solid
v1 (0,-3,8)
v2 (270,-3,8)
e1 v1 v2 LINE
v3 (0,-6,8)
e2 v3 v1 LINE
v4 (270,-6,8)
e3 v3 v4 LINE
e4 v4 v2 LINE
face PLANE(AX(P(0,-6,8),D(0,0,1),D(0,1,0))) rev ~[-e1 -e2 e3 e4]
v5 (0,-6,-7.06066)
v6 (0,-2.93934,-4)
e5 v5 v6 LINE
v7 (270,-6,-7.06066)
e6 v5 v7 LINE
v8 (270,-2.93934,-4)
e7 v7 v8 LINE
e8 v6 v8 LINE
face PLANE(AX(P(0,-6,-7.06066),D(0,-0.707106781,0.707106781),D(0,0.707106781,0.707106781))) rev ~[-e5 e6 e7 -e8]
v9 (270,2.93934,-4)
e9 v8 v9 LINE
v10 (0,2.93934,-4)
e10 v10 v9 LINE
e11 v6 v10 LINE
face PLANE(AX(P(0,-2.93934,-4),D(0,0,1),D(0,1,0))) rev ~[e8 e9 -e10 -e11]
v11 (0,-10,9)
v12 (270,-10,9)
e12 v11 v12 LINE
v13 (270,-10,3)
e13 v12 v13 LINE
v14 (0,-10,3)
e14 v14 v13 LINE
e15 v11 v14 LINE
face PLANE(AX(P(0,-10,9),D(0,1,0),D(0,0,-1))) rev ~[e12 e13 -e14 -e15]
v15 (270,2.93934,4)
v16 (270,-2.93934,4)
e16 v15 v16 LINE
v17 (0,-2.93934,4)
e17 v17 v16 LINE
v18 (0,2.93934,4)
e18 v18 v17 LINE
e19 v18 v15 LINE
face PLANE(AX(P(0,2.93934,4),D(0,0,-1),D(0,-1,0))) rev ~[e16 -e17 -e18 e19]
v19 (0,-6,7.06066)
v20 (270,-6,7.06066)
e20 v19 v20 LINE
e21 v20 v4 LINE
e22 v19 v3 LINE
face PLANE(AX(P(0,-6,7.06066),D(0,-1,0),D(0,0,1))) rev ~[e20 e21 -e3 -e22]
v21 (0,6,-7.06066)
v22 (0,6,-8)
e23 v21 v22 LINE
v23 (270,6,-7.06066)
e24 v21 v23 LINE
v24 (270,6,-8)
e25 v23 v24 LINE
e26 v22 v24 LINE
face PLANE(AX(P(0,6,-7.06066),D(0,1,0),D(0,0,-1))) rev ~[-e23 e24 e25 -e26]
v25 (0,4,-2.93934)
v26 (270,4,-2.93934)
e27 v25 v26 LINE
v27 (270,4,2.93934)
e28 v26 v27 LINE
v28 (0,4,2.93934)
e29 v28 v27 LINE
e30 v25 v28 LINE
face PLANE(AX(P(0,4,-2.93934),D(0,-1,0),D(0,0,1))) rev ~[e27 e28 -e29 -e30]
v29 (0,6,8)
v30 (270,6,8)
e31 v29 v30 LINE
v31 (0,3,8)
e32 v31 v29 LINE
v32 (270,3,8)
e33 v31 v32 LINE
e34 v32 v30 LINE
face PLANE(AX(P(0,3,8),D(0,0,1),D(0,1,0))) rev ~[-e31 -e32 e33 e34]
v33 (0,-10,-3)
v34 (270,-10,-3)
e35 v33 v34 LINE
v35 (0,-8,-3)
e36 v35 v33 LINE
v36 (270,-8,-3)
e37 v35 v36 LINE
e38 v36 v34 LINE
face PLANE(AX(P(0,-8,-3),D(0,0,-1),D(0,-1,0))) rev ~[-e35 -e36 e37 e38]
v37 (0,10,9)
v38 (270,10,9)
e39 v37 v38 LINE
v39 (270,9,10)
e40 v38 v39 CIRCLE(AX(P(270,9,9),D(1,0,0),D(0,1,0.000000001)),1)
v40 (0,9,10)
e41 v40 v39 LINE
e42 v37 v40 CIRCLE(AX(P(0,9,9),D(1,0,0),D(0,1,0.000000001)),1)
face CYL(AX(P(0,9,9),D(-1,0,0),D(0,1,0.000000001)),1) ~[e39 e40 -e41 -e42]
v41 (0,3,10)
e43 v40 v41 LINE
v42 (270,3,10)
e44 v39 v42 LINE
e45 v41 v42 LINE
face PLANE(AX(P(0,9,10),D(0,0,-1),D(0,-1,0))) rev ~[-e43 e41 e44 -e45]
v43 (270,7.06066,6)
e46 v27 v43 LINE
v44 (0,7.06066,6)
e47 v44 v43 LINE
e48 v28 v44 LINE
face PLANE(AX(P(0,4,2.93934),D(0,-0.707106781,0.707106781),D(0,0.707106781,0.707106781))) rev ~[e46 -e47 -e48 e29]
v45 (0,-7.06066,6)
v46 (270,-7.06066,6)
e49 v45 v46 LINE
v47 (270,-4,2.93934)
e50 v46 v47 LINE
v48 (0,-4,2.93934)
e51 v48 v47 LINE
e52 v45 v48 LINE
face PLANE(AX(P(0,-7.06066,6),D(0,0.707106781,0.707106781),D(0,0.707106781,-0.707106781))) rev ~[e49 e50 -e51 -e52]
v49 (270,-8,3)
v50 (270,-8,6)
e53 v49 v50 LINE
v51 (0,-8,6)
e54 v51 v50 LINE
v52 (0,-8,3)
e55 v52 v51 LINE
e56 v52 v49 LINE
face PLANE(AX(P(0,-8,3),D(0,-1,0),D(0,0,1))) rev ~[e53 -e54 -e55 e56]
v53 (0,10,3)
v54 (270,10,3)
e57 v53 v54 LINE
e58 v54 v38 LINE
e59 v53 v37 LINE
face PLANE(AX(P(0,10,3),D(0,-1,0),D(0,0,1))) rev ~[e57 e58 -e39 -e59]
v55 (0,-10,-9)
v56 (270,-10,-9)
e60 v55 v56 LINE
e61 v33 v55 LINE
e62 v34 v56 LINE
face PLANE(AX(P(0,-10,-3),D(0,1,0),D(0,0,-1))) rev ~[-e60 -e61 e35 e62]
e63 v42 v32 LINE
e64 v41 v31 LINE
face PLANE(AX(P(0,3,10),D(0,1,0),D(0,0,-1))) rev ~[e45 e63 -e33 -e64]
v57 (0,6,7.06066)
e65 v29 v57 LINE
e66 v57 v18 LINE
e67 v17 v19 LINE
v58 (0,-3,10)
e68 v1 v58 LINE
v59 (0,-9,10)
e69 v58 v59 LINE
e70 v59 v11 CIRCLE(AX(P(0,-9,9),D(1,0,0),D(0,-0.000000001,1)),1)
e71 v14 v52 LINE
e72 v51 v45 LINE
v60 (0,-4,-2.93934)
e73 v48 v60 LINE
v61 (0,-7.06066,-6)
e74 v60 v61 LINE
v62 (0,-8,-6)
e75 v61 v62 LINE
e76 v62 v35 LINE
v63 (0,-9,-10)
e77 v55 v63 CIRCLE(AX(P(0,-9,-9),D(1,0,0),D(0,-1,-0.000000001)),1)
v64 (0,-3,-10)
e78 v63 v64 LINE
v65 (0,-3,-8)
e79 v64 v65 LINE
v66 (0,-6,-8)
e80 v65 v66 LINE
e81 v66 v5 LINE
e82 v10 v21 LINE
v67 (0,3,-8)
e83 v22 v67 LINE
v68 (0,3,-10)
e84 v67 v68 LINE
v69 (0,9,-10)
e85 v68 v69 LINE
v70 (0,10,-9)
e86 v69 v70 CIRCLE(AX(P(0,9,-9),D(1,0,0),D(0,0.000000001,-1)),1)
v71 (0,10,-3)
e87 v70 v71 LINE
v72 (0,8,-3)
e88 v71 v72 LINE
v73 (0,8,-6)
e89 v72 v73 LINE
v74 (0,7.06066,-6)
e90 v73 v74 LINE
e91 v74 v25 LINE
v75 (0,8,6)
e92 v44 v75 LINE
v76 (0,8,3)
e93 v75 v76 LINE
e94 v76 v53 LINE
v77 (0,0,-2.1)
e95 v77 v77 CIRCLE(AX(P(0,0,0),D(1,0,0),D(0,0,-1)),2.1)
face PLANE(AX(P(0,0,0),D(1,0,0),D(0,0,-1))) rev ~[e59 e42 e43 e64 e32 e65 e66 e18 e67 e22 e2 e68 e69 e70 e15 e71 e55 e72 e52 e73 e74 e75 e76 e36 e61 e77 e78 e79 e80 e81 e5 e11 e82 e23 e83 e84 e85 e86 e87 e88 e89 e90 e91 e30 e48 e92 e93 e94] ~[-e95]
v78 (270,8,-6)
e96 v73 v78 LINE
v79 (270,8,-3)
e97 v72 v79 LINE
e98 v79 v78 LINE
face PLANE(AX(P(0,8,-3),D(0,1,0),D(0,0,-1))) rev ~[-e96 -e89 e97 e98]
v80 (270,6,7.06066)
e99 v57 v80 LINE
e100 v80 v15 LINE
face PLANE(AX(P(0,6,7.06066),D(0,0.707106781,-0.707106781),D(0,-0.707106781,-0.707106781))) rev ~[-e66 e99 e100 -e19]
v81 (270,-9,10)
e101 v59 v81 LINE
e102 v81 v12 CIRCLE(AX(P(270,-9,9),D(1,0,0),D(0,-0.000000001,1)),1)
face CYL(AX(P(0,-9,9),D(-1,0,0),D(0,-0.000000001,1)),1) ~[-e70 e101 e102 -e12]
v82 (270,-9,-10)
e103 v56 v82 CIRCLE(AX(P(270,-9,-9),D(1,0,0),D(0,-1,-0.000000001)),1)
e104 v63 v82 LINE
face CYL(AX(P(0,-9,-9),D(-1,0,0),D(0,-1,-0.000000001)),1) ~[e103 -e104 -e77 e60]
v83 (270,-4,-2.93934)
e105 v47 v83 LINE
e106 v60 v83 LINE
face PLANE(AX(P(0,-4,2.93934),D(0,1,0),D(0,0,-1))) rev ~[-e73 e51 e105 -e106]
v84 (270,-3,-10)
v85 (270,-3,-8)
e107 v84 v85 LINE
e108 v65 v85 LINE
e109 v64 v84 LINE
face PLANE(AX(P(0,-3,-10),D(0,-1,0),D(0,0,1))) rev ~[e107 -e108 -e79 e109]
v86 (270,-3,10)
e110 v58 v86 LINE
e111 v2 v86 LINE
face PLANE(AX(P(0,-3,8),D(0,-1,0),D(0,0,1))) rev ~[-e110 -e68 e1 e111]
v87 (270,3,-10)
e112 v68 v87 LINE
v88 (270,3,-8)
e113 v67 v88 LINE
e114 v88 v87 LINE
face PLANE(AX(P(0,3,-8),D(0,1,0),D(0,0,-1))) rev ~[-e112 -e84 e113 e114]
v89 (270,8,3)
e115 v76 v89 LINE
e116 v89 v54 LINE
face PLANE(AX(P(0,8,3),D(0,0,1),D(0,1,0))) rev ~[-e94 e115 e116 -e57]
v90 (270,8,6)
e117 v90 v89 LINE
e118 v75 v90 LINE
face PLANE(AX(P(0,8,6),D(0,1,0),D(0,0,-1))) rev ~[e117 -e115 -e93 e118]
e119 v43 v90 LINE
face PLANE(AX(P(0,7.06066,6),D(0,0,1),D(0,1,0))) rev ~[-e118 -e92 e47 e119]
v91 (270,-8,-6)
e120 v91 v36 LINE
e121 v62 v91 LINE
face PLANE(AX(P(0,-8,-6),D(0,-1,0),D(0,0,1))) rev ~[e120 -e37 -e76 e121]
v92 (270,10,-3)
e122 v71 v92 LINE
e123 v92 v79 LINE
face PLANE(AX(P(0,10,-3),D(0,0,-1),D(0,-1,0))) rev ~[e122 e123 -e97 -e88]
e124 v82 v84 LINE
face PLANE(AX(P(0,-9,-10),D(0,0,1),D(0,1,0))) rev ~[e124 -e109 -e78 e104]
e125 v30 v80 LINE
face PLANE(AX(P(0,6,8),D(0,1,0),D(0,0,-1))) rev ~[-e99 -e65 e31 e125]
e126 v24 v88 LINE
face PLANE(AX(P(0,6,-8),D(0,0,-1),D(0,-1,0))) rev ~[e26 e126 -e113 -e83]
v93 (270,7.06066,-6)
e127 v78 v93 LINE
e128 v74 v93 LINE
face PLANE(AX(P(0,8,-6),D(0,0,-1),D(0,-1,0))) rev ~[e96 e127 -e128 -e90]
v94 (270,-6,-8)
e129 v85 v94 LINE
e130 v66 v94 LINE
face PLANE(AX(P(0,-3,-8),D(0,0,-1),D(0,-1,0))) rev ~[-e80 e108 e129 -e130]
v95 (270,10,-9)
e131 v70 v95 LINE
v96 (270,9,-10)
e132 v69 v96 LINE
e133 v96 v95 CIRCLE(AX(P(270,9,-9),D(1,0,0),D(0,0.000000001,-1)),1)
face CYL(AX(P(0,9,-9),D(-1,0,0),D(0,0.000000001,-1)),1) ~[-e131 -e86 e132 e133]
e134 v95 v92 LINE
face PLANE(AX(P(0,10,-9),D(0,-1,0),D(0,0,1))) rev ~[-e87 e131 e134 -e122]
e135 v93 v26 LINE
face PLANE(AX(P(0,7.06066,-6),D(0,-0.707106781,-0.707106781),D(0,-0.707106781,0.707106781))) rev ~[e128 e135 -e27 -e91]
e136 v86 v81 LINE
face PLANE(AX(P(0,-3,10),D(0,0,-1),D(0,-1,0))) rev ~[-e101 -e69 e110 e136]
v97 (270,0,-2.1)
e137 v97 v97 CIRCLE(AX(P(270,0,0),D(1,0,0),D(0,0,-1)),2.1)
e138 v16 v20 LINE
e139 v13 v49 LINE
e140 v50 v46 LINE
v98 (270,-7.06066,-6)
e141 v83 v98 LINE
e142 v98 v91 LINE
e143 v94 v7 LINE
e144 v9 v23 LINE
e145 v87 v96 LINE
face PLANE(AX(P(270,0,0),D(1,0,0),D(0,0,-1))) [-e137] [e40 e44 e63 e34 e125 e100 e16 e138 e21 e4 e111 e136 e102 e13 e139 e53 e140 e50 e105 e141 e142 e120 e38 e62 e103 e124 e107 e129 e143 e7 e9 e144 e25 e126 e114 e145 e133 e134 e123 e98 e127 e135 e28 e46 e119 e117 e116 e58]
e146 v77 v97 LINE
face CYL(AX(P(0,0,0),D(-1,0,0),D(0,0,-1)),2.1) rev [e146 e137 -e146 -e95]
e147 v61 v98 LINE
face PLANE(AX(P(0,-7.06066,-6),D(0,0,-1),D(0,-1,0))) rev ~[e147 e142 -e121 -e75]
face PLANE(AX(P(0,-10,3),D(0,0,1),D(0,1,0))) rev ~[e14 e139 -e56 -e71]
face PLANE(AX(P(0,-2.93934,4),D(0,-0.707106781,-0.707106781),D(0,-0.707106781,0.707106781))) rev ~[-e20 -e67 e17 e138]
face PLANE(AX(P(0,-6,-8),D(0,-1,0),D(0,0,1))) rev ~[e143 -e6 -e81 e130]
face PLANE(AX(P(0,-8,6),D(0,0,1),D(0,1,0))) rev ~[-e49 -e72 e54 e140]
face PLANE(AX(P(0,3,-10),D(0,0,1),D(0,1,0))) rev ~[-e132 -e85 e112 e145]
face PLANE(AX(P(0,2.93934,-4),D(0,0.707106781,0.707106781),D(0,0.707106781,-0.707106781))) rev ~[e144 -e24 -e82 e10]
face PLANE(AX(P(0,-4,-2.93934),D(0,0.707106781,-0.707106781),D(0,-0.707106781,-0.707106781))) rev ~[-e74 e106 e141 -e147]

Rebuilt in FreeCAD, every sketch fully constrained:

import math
import FreeCAD as App
import Part
import Sketcher
from FreeCAD import Vector
Q = App.Units.Quantity

doc = App.newDocument("Part")
body = doc.addObject("PartDesign::Body", "Body")

sketch1 = body.newObject("Sketcher::SketchObject", "Sketch")
sketch1.AttachmentSupport = (doc.getObject("YZ_Plane"), [""])
sketch1.MapMode = "FlatFace"
sketch1.addGeometry([
    Part.LineSegment(Vector(9, 10, 0), Vector(3, 10, 0)),
    Part.LineSegment(Vector(3, 10, 0), Vector(3, 8, 0)),
    Part.LineSegment(Vector(3, 8, 0), Vector(6, 8, 0)),
    Part.LineSegment(Vector(6, 8, 0), Vector(6, 7.1, 0)),
    Part.LineSegment(Vector(6, 7.1, 0), Vector(2.9, 4, 0)),
    Part.LineSegment(Vector(2.9, 4, 0), Vector(-2.9, 4, 0)),
    Part.LineSegment(Vector(-2.9, 4, 0), Vector(-6, 7.1, 0)),
    Part.LineSegment(Vector(-6, 7.1, 0), Vector(-6, 8, 0)),
    Part.LineSegment(Vector(-6, 8, 0), Vector(-3, 8, 0)),
    Part.LineSegment(Vector(-3, 8, 0), Vector(-3, 10, 0)),
    Part.LineSegment(Vector(-3, 10, 0), Vector(-9, 10, 0)),
    Part.ArcOfCircle(Part.Circle(Vector(-9, 9, 0), Vector(0, 0, 1), 1), math.radians(90), math.radians(180)),
    Part.LineSegment(Vector(-10, 9, 0), Vector(-10, 3, 0)),
    Part.LineSegment(Vector(-10, 3, 0), Vector(-8, 3, 0)),
    Part.LineSegment(Vector(-8, 3, 0), Vector(-8, 6, 0)),
    Part.LineSegment(Vector(-8, 6, 0), Vector(-7.1, 6, 0)),
    Part.LineSegment(Vector(-7.1, 6, 0), Vector(-4, 2.9, 0)),
    Part.LineSegment(Vector(-4, 2.9, 0), Vector(-4, -2.9, 0)),
    Part.LineSegment(Vector(-4, -2.9, 0), Vector(-7.1, -6, 0)),
    Part.LineSegment(Vector(-7.1, -6, 0), Vector(-8, -6, 0)),
    Part.LineSegment(Vector(-8, -6, 0), Vector(-8, -3, 0)),
    Part.LineSegment(Vector(-8, -3, 0), Vector(-10, -3, 0)),
    Part.LineSegment(Vector(-10, -3, 0), Vector(-10, -9, 0)),
    Part.ArcOfCircle(Part.Circle(Vector(-9, -9, 0), Vector(0, 0, 1), 1), math.radians(-180), math.radians(-90)),
    Part.LineSegment(Vector(-9, -10, 0), Vector(-3, -10, 0)),
    Part.LineSegment(Vector(-3, -10, 0), Vector(-3, -8, 0)),
    Part.LineSegment(Vector(-3, -8, 0), Vector(-6, -8, 0)),
    Part.LineSegment(Vector(-6, -8, 0), Vector(-6, -7.1, 0)),
    Part.LineSegment(Vector(-6, -7.1, 0), Vector(-2.9, -4, 0)),
    Part.LineSegment(Vector(-2.9, -4, 0), Vector(2.9, -4, 0)),
    Part.LineSegment(Vector(2.9, -4, 0), Vector(6, -7.1, 0)),
    Part.LineSegment(Vector(6, -7.1, 0), Vector(6, -8, 0)),
    Part.LineSegment(Vector(6, -8, 0), Vector(3, -8, 0)),
    Part.LineSegment(Vector(3, -8, 0), Vector(3, -10, 0)),
    Part.LineSegment(Vector(3, -10, 0), Vector(9, -10, 0)),
    Part.ArcOfCircle(Part.Circle(Vector(9, -9, 0), Vector(0, 0, 1), 1), math.radians(-90), math.radians(0)),
    Part.LineSegment(Vector(10, -9, 0), Vector(10, -3, 0)),
    Part.LineSegment(Vector(10, -3, 0), Vector(8, -3, 0)),
    Part.LineSegment(Vector(8, -3, 0), Vector(8, -6, 0)),
    Part.LineSegment(Vector(8, -6, 0), Vector(7.1, -6, 0)),
    Part.LineSegment(Vector(7.1, -6, 0), Vector(4, -2.9, 0)),
    Part.LineSegment(Vector(4, -2.9, 0), Vector(4, 2.9, 0)),
    Part.LineSegment(Vector(4, 2.9, 0), Vector(7.1, 6, 0)),
    Part.LineSegment(Vector(7.1, 6, 0), Vector(8, 6, 0)),
    Part.LineSegment(Vector(8, 6, 0), Vector(8, 3, 0)),
    Part.LineSegment(Vector(8, 3, 0), Vector(10, 3, 0)),
    Part.LineSegment(Vector(10, 3, 0), Vector(10, 9, 0)),
    Part.ArcOfCircle(Part.Circle(Vector(9, 9, 0), Vector(0, 0, 1), 1), math.radians(0), math.radians(90)),
    Part.Circle(Vector(0, 0, 0), Vector(0, 0, 1), 2.1),
], False)
sketch1.addConstraint([
    Sketcher.Constraint("Coincident", 0, 2, 1, 1),
    Sketcher.Constraint("Coincident", 1, 2, 2, 1),
    Sketcher.Constraint("Coincident", 2, 2, 3, 1),
    Sketcher.Constraint("Coincident", 3, 2, 4, 1),
    Sketcher.Constraint("Coincident", 4, 2, 5, 1),
    Sketcher.Constraint("Coincident", 5, 2, 6, 1),
    Sketcher.Constraint("Coincident", 6, 2, 7, 1),
    Sketcher.Constraint("Coincident", 7, 2, 8, 1),
    Sketcher.Constraint("Coincident", 8, 2, 9, 1),
    Sketcher.Constraint("Coincident", 9, 2, 10, 1),
    Sketcher.Constraint("Tangent", 10, 2, 11, 1),
    Sketcher.Constraint("Tangent", 11, 2, 12, 1),
    Sketcher.Constraint("Coincident", 12, 2, 13, 1),
    Sketcher.Constraint("Coincident", 13, 2, 14, 1),
    Sketcher.Constraint("Coincident", 14, 2, 15, 1),
    Sketcher.Constraint("Coincident", 15, 2, 16, 1),
    Sketcher.Constraint("Coincident", 16, 2, 17, 1),
    Sketcher.Constraint("Coincident", 17, 2, 18, 1),
    Sketcher.Constraint("Coincident", 18, 2, 19, 1),
    Sketcher.Constraint("Coincident", 19, 2, 20, 1),
    Sketcher.Constraint("Coincident", 20, 2, 21, 1),
    Sketcher.Constraint("Coincident", 21, 2, 22, 1),
    Sketcher.Constraint("Tangent", 22, 2, 23, 1),
    Sketcher.Constraint("Tangent", 23, 2, 24, 1),
    Sketcher.Constraint("Coincident", 24, 2, 25, 1),
    Sketcher.Constraint("Coincident", 25, 2, 26, 1),
    Sketcher.Constraint("Coincident", 26, 2, 27, 1),
    Sketcher.Constraint("Coincident", 27, 2, 28, 1),
    Sketcher.Constraint("Coincident", 28, 2, 29, 1),
    Sketcher.Constraint("Coincident", 29, 2, 30, 1),
    Sketcher.Constraint("Coincident", 30, 2, 31, 1),
    Sketcher.Constraint("Coincident", 31, 2, 32, 1),
    Sketcher.Constraint("Coincident", 32, 2, 33, 1),
    Sketcher.Constraint("Coincident", 33, 2, 34, 1),
    Sketcher.Constraint("Tangent", 34, 2, 35, 1),
    Sketcher.Constraint("Tangent", 35, 2, 36, 1),
    Sketcher.Constraint("Coincident", 36, 2, 37, 1),
    Sketcher.Constraint("Coincident", 37, 2, 38, 1),
    Sketcher.Constraint("Coincident", 38, 2, 39, 1),
    Sketcher.Constraint("Coincident", 39, 2, 40, 1),
    Sketcher.Constraint("Coincident", 40, 2, 41, 1),
    Sketcher.Constraint("Coincident", 41, 2, 42, 1),
    Sketcher.Constraint("Coincident", 42, 2, 43, 1),
    Sketcher.Constraint("Coincident", 43, 2, 44, 1),
    Sketcher.Constraint("Coincident", 44, 2, 45, 1),
    Sketcher.Constraint("Coincident", 45, 2, 46, 1),
    Sketcher.Constraint("Tangent", 46, 2, 47, 1),
    Sketcher.Constraint("Tangent", 47, 2, 0, 1),
    Sketcher.Constraint("Horizontal", 0),
    Sketcher.Constraint("Vertical", 1),
    Sketcher.Constraint("Horizontal", 2),
    Sketcher.Constraint("Vertical", 3),
    Sketcher.Constraint("Horizontal", 5),
    Sketcher.Constraint("Vertical", 7),
    Sketcher.Constraint("Horizontal", 8),
    Sketcher.Constraint("Vertical", 9),
    Sketcher.Constraint("Horizontal", 10),
    Sketcher.Constraint("Vertical", 12),
    Sketcher.Constraint("Horizontal", 13),
    Sketcher.Constraint("Vertical", 14),
    Sketcher.Constraint("Horizontal", 15),
    Sketcher.Constraint("Vertical", 17),
    Sketcher.Constraint("Horizontal", 19),
    Sketcher.Constraint("Vertical", 20),
    Sketcher.Constraint("Horizontal", 21),
    Sketcher.Constraint("Vertical", 22),
    Sketcher.Constraint("Horizontal", 24),
    Sketcher.Constraint("Vertical", 25),
    Sketcher.Constraint("Horizontal", 26),
    Sketcher.Constraint("Vertical", 27),
    Sketcher.Constraint("Horizontal", 29),
    Sketcher.Constraint("Vertical", 31),
    Sketcher.Constraint("Horizontal", 32),
    Sketcher.Constraint("Vertical", 33),
    Sketcher.Constraint("Horizontal", 34),
    Sketcher.Constraint("Vertical", 36),
    Sketcher.Constraint("Horizontal", 37),
    Sketcher.Constraint("Vertical", 38),
    Sketcher.Constraint("Horizontal", 39),
    Sketcher.Constraint("Vertical", 41),
    Sketcher.Constraint("Horizontal", 43),
    Sketcher.Constraint("Vertical", 44),
    Sketcher.Constraint("Horizontal", 45),
    Sketcher.Constraint("Vertical", 46),
    Sketcher.Constraint("Coincident", 48, 3, -1, 1),
    Sketcher.Constraint("Equal", 11, 23),
    Sketcher.Constraint("Equal", 23, 35),
    Sketcher.Constraint("Equal", 35, 47),
    Sketcher.Constraint("Symmetric", 11, 3, 35, 3, -1, 1),
    Sketcher.Constraint("Symmetric", 23, 3, 47, 3, -1, 1),
    Sketcher.Constraint("Symmetric", 1, 2, 25, 2, -1, 1),
    Sketcher.Constraint("Symmetric", 3, 2, 27, 2, -1, 1),
    Sketcher.Constraint("Symmetric", 4, 2, 28, 2, -1, 1),
    Sketcher.Constraint("Symmetric", 6, 2, 30, 2, -1, 1),
    Sketcher.Constraint("Symmetric", 8, 2, 32, 2, -1, 1),
    Sketcher.Constraint("Symmetric", 13, 2, 37, 2, -1, 1),
    Sketcher.Constraint("Symmetric", 15, 2, 39, 2, -1, 1),
    Sketcher.Constraint("Symmetric", 16, 2, 40, 2, -1, 1),
    Sketcher.Constraint("Symmetric", 18, 2, 42, 2, -1, 1),
    Sketcher.Constraint("Symmetric", 20, 2, 44, 2, -1, 1),
    Sketcher.Constraint("Symmetric", 23, 3, 35, 3, -2),
    Sketcher.Constraint("Symmetric", 3, 2, 6, 2, -2),
    Sketcher.Constraint("Symmetric", 1, 2, 8, 2, -2),
    Sketcher.Constraint("Symmetric", 20, 2, 37, 2, -2),
    Sketcher.Constraint("Symmetric", 18, 2, 39, 2, -2),
    Sketcher.Constraint("Perpendicular", 4, 6),
    Sketcher.Constraint("Parallel", 6, 16),
    Sketcher.Constraint("Perpendicular", 16, 18),
    Sketcher.Constraint("Perpendicular", 28, 30),
    Sketcher.Constraint("Perpendicular", 40, 42),
    Sketcher.Constraint("Horizontal", 17, 2, 40, 2),
    Sketcher.Constraint("Equal", 45, 1),
    Sketcher.Constraint("Equal", 43, 3),
    Sketcher.Constraint("Equal", 34, 12),
    Sketcher.Constraint("Equal", 32, 14),
    Sketcher.Constraint("Equal", 29, 17),
    Sketcher.Constraint("Equal", 6, 16),
    Sketcher.Constraint("Radius", 11, Q("1 mm")),
    Sketcher.Constraint("Diameter", 48, Q("4.2 mm")),
    Sketcher.Constraint("DistanceX", 0, 2, 0, 1, Q("6 mm")),
    Sketcher.Constraint("DistanceX", 2, 1, 2, 2, Q("3 mm")),
    Sketcher.Constraint("DistanceX", 13, 1, 13, 2, Q("2 mm")),
    Sketcher.Constraint("DistanceX", 11, 3, -1, 1, Q("9 mm")),
    Sketcher.Constraint("DistanceY", -1, 1, 4, 2, Q("4 mm")),
    Sketcher.Constraint("DistanceX", 5, 2, 5, 1, Q("5.87868 mm")),
])
pad1 = body.newObject("PartDesign::Pad", "Pad")
pad1.Profile = sketch1
pad1.Length = 270

doc.recompute()
